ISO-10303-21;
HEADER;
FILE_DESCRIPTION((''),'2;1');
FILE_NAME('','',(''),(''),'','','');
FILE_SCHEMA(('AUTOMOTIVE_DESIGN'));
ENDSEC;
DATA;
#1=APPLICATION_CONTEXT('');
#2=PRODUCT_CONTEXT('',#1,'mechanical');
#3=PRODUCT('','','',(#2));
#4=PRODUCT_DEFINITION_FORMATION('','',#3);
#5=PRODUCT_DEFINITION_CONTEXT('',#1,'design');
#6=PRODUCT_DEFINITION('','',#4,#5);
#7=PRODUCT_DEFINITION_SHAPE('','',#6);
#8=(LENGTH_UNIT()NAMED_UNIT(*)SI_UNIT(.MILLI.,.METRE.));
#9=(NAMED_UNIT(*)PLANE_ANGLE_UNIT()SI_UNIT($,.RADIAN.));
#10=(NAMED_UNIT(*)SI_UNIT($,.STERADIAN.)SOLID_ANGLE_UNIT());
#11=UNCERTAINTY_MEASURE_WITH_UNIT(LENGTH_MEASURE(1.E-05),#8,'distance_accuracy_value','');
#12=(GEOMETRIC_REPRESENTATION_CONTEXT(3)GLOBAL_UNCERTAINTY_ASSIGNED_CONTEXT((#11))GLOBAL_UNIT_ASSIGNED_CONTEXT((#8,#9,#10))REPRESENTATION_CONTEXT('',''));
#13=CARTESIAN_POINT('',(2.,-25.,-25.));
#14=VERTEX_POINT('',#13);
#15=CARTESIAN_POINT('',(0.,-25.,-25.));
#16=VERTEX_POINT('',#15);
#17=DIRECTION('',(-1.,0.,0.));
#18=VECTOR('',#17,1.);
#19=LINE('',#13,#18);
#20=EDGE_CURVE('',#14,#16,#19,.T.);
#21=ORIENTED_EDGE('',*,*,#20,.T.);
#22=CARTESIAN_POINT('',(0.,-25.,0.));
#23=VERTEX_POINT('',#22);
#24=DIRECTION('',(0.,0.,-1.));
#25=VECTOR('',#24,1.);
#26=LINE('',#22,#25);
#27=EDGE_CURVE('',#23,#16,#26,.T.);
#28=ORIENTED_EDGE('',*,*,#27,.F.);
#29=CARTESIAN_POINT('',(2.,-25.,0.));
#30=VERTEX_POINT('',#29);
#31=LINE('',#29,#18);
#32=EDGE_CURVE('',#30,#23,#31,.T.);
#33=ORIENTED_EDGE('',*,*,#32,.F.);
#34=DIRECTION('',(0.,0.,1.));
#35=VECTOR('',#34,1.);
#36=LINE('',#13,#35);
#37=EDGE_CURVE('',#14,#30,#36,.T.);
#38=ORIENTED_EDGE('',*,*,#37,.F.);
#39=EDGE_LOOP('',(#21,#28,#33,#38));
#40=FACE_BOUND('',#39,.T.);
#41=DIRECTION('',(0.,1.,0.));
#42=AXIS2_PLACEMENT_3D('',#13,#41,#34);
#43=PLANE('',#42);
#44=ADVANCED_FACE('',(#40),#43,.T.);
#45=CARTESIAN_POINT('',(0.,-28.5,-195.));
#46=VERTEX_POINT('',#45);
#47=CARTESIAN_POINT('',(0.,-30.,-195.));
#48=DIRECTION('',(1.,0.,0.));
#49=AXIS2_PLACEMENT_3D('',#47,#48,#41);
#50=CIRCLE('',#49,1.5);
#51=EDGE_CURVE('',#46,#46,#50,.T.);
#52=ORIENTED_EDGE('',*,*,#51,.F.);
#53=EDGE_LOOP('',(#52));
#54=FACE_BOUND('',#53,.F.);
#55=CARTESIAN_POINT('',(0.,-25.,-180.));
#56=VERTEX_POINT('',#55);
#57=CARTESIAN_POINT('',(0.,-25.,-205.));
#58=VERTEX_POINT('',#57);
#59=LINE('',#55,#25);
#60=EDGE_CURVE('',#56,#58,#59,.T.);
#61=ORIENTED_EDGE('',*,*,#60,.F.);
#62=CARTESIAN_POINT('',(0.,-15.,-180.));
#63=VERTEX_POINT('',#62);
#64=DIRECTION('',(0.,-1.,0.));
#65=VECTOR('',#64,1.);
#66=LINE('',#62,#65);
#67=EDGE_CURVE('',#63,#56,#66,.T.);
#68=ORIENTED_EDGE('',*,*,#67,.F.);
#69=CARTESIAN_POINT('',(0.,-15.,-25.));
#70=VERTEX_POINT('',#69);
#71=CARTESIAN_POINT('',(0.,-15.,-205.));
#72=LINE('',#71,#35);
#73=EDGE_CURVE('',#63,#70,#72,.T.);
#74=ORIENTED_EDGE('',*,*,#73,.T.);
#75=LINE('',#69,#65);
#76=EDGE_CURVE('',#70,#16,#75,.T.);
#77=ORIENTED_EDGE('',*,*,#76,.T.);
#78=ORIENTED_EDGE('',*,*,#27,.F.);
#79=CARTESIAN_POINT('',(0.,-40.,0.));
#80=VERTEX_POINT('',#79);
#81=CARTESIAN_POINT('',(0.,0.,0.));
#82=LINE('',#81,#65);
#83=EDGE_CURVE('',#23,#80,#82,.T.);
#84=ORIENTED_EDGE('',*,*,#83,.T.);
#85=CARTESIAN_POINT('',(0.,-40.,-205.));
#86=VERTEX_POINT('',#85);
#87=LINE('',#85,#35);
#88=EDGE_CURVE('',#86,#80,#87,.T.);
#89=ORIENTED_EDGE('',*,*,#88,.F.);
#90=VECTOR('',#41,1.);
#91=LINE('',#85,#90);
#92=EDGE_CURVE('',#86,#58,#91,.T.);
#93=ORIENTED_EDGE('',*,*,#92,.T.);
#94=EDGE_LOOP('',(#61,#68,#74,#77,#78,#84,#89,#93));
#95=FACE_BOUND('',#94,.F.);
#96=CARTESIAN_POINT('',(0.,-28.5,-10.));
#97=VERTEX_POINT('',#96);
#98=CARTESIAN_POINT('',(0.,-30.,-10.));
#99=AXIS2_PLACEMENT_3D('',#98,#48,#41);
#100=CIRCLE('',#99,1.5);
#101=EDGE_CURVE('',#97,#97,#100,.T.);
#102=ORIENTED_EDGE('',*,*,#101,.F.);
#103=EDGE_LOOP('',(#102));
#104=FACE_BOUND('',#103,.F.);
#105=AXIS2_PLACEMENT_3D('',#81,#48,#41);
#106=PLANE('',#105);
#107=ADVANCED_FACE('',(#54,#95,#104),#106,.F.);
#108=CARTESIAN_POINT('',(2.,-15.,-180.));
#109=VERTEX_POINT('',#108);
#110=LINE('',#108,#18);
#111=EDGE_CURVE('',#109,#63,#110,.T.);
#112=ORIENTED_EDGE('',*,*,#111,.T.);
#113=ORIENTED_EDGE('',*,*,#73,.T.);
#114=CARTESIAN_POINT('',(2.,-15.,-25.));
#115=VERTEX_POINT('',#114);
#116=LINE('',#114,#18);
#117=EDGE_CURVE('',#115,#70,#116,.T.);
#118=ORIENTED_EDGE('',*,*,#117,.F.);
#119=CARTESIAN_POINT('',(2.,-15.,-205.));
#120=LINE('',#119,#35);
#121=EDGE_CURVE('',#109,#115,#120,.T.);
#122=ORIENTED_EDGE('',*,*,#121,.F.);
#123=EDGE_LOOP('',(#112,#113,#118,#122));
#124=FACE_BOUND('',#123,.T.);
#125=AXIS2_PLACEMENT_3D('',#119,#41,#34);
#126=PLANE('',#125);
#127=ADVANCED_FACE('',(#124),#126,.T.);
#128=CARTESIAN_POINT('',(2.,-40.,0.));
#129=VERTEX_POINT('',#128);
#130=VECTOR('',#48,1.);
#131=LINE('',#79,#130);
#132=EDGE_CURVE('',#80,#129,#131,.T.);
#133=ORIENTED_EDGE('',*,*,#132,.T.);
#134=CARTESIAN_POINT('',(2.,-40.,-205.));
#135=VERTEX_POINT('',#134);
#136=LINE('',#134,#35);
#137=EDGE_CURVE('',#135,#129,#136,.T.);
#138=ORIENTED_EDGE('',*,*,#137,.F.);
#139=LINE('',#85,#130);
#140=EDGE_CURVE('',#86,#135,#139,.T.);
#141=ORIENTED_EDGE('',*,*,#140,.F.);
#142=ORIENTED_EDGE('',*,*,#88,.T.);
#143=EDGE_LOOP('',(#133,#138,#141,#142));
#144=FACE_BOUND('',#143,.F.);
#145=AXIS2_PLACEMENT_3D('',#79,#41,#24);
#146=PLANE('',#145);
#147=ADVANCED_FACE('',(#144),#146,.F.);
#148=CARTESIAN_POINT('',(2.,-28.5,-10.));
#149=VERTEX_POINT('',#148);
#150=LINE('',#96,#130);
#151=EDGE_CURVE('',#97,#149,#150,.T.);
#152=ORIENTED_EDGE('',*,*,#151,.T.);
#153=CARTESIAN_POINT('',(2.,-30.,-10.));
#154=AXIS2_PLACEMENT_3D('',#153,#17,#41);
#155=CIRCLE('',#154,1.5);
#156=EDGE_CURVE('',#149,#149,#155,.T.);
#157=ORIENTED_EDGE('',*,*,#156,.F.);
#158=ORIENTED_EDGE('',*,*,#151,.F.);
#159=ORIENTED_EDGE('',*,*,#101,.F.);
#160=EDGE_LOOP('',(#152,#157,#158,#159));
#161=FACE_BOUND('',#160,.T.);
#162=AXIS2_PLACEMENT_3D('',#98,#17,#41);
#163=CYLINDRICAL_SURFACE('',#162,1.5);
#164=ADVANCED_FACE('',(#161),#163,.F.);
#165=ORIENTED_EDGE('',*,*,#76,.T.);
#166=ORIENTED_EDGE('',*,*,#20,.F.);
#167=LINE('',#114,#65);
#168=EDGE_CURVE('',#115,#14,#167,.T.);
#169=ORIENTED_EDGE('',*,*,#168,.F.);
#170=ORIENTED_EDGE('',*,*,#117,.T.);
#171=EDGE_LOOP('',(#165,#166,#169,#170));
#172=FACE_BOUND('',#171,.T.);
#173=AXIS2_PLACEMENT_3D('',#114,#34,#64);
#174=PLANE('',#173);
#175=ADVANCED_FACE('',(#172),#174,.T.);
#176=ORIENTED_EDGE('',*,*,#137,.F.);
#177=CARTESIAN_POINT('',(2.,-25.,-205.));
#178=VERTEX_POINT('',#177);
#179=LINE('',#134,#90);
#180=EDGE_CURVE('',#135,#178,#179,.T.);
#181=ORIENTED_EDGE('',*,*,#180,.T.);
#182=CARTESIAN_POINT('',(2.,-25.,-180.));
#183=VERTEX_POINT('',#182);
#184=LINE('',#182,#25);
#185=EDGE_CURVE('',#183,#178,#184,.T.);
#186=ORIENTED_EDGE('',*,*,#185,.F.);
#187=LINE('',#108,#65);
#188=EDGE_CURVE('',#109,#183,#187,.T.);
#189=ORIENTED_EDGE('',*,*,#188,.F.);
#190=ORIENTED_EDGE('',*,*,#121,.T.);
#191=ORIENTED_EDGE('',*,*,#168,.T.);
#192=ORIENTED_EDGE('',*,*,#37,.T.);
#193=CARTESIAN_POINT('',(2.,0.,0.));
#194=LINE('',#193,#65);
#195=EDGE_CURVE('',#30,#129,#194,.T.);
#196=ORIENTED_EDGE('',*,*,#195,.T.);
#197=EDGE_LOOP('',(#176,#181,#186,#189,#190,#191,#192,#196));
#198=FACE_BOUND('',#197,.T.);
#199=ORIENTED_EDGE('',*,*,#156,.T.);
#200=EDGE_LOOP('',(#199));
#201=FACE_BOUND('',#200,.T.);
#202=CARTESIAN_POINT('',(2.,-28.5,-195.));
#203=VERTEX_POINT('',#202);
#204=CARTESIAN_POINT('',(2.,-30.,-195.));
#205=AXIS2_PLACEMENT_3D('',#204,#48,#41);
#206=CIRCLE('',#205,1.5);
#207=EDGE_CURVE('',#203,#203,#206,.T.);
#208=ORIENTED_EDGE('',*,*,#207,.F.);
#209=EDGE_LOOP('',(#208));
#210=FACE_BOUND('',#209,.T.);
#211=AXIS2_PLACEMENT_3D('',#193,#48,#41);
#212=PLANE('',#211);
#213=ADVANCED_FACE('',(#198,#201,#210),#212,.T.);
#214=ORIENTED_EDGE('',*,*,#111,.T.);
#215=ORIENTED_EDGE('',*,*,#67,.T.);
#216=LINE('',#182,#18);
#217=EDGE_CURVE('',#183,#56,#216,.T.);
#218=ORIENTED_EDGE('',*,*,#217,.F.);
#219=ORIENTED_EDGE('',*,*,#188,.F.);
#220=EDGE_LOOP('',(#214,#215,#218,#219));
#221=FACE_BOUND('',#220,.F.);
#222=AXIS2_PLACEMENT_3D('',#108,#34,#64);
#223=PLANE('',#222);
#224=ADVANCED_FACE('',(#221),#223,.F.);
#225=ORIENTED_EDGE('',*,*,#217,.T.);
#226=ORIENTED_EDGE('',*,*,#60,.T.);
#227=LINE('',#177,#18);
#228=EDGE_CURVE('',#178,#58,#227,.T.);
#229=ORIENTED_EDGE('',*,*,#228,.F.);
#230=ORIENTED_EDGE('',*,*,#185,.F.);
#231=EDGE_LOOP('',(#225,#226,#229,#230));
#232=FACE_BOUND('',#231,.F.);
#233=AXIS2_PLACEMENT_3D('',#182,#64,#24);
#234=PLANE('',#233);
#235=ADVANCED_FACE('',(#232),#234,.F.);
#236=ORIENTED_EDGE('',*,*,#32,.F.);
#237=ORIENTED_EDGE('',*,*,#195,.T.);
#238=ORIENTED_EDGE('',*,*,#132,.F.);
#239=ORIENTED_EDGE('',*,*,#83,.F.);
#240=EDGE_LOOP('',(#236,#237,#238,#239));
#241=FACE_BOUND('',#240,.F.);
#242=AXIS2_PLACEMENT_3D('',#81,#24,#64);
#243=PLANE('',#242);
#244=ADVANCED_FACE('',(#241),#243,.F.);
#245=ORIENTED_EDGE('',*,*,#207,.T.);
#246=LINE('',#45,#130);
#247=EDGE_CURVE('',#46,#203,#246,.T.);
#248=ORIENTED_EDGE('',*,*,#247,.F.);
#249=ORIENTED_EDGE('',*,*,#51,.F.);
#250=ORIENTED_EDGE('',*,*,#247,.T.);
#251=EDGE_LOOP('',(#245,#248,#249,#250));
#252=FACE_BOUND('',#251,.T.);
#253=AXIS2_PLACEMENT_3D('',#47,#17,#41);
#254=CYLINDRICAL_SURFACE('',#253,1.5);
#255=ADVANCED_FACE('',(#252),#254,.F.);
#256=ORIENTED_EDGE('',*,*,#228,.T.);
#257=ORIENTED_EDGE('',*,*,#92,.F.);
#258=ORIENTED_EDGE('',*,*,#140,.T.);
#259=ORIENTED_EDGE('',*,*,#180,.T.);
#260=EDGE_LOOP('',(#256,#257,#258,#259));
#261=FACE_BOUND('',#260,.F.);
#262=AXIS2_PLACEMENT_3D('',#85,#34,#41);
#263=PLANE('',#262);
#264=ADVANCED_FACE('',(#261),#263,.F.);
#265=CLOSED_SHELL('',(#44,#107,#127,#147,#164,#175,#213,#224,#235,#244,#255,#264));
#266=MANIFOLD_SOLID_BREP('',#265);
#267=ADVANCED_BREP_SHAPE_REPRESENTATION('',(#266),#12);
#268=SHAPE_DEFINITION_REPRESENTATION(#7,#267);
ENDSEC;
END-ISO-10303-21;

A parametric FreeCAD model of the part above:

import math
import FreeCAD as App
import Part
import Sketcher
from FreeCAD import Vector

doc = App.newDocument("Part")
body = doc.addObject("PartDesign::Body", "Body")

# Sketch on YZ plane
sketch1 = body.newObject("Sketcher::SketchObject", "Sketch")
sketch1.AttachmentSupport = (doc.getObject("YZ_Plane"), [""])
sketch1.MapMode = "FlatFace"
sketch1.addGeometry([
    Part.LineSegment(Vector(0, -5, 0), Vector(0, 0, 0)),  # 0
    Part.LineSegment(Vector(0, 0, 0), Vector(-40, 0, 0)),  # 1
    Part.LineSegment(Vector(-40, 0, 0), Vector(-40, -10, 0)),  # 2
    Part.LineSegment(Vector(-40, -10, 0), Vector(-40, -205, 0)),  # 3
    Part.LineSegment(Vector(-40, -205, 0), Vector(0, -205, 0)),  # 4
    Part.LineSegment(Vector(0, -205, 0), Vector(0, -5, 0)),  # 5
    Part.ArcOfCircle(Part.Circle(Vector(-30, -10, 0), Vector(0, 0, 1), 1.5), math.radians(180), math.radians(360)),  # 6
    Part.ArcOfCircle(Part.Circle(Vector(-30, -10, 0), Vector(0, 0, 1), 1.5), math.radians(0), math.radians(180)),  # 7
    Part.Circle(Vector(-20, -10, 0), Vector(0, 0, 1), 1.5),  # 8
    Part.Circle(Vector(-5, -15, 0), Vector(0, 0, 1), 1.5),  # 9
    Part.ArcOfCircle(Part.Circle(Vector(-5, -5, 0), Vector(0, 0, 1), 1.5), math.radians(0), math.radians(270)),  # 10
    Part.ArcOfCircle(Part.Circle(Vector(-5, -5, 0), Vector(0, 0, 1), 1.5), math.radians(-90), math.radians(0)),  # 11
    Part.Circle(Vector(-5, -190, 0), Vector(0, 0, 1), 1.5),  # 12
    Part.Circle(Vector(-30, -195, 0), Vector(0, 0, 1), 1.5),  # 13
    Part.Circle(Vector(-20, -195, 0), Vector(0, 0, 1), 1.5),  # 14
    Part.Circle(Vector(-5, -200, 0), Vector(0, 0, 1), 1.5),  # 15
], False)
sketch1.addConstraint([
    Sketcher.Constraint("Coincident", 0, 2, 1, 1),
    Sketcher.Constraint("Coincident", 1, 2, 2, 1),
    Sketcher.Constraint("Coincident", 2, 2, 3, 1),
    Sketcher.Constraint("Coincident", 3, 2, 4, 1),
    Sketcher.Constraint("Coincident", 4, 2, 5, 1),
    Sketcher.Constraint("Coincident", 5, 2, 0, 1),
    Sketcher.Constraint("Tangent", 6, 1, 7, 2),
    Sketcher.Constraint("Coincident", 7, 1, 6, 2),
    Sketcher.Constraint("Tangent", 10, 1, 11, 2),
    Sketcher.Constraint("Coincident", 11, 1, 10, 2),
    Sketcher.Constraint("Vertical", 0),
    Sketcher.Constraint("Horizontal", 1),
    Sketcher.Constraint("Vertical", 2),
    Sketcher.Constraint("Vertical", 3),
    Sketcher.Constraint("Horizontal", 4),
    Sketcher.Constraint("Vertical", 5),
    Sketcher.Constraint("Coincident", 0, 2, -1, 1),
    Sketcher.Constraint("Equal", 7, 8),
    Sketcher.Constraint("Equal", 8, 9),
    Sketcher.Constraint("Equal", 9, 10),
    Sketcher.Constraint("Equal", 11, 12),
    Sketcher.Constraint("Equal", 12, 13),
    Sketcher.Constraint("Equal", 13, 14),
    Sketcher.Constraint("Equal", 14, 15),
    Sketcher.Constraint("Horizontal", 7, 3, 8, 3),
    Sketcher.Constraint("Horizontal", 13, 3, 14, 3),
    Sketcher.Constraint("Horizontal", 8, 3, 2, 2),
    Sketcher.Constraint("Horizontal", 11, 3, 5, 2),
    Sketcher.Constraint("Horizontal", 2, 2, 6, 1),
    Sketcher.Constraint("Horizontal", 6, 1, 7, 1),
    Sketcher.Constraint("Horizontal", 5, 2, 10, 1),
    Sketcher.Constraint("Vertical", 9, 3, 10, 3),
    Sketcher.Constraint("Vertical", 11, 3, 12, 3),
    Sketcher.Constraint("Vertical", 7, 3, 13, 3),
    Sketcher.Constraint("Vertical", 8, 3, 14, 3),
    Sketcher.Constraint("Vertical", 12, 3, 15, 3),
    Sketcher.Constraint("Vertical", 15, 3, 11, 1),
    Sketcher.Constraint("Diameter", 8, 3.0),
    Sketcher.Constraint("DistanceX", 1, 2, 1, 1, 40.0),
    Sketcher.Constraint("DistanceY", 0, 1, 0, 2, 5.0),
    Sketcher.Constraint("DistanceY", 2, 2, 2, 1, 10.0),
    Sketcher.Constraint("DistanceX", 9, 3, -1, 1, 5.0),
    Sketcher.Constraint("DistanceY", 3, 2, -1, 1, 205.0),
    Sketcher.Constraint("DistanceX", 6, 3, 8, 3, 10.0),
    Sketcher.Constraint("DistanceY", 9, 3, 8, 3, 5.0),
    Sketcher.Constraint("DistanceY", 13, 3, 12, 3, 5.0),
    Sketcher.Constraint("DistanceY", 15, 3, 12, 3, 10.0),
    Sketcher.Constraint("DistanceX", 1, 2, 6, 3, 10.0),
    Sketcher.Constraint("DistanceY", 3, 2, 13, 3, 10.0),
])
pad1 = body.newObject("PartDesign::Pad", "Pad")
pad1.Profile = sketch1
pad1.Length = 2

# Sketch on YZ plane
sketch2 = body.newObject("Sketcher::SketchObject", "Sketch001")
sketch2.AttachmentSupport = (doc.getObject("YZ_Plane"), [""])
sketch2.MapMode = "FlatFace"
sketch2.AttachmentOffset = App.Placement(Vector(0, 0, 2), App.Rotation())
sketch2.addGeometry([
    Part.LineSegment(Vector(-15, 0, 0), Vector(-15, -205, 0)),
    Part.LineSegment(Vector(-15, -205, 0), Vector(0, -205, 0)),
    Part.LineSegment(Vector(0, -205, 0), Vector(0, 0, 0)),
    Part.LineSegment(Vector(0, 0, 0), Vector(-15, 0, 0)),
], False)
sketch2.addConstraint([
    Sketcher.Constraint("Coincident", 0, 2, 1, 1),
    Sketcher.Constraint("Coincident", 1, 2, 2, 1),
    Sketcher.Constraint("Coincident", 2, 2, 3, 1),
    Sketcher.Constraint("Coincident", 3, 2, 0, 1),
    Sketcher.Constraint("Vertical", 0),
    Sketcher.Constraint("Horizontal", 1),
    Sketcher.Constraint("Vertical", 2),
    Sketcher.Constraint("Horizontal", 3),
    Sketcher.Constraint("Coincident", 2, 2, -1, 1),
    Sketcher.Constraint("DistanceX", 1, 1, 1, 2, 15.0),
    Sketcher.Constraint("DistanceY", 0, 2, 0, 1, 205.0),
])
pocket1 = body.newObject("PartDesign::Pocket", "Pocket")
pocket1.Profile = sketch2
pocket1.Length = 2

# Sketch on YZ plane
sketch3 = body.newObject("Sketcher::SketchObject", "Sketch002")
sketch3.AttachmentSupport = (doc.getObject("YZ_Plane"), [""])
sketch3.MapMode = "FlatFace"
sketch3.AttachmentOffset = App.Placement(Vector(0, 0, 2), App.Rotation())
sketch3.addGeometry([
    Part.LineSegment(Vector(-15, -25, 0), Vector(-15, 0, 0)),  # 0
    Part.LineSegment(Vector(-15, 0, 0), Vector(-25, 0, 0)),  # 1
    Part.LineSegment(Vector(-25, 0, 0), Vector(-25, -25, 0)),  # 2
    Part.LineSegment(Vector(-25, -25, 0), Vector(-15, -25, 0)),  # 3
    Part.LineSegment(Vector(-15, -205, 0), Vector(-15, -180, 0)),  # 4
    Part.LineSegment(Vector(-15, -180, 0), Vector(-25, -180, 0)),  # 5
    Part.LineSegment(Vector(-25, -180, 0), Vector(-25, -205, 0)),  # 6
    Part.LineSegment(Vector(-25, -205, 0), Vector(-15, -205, 0)),  # 7
], False)
sketch3.addConstraint([
    Sketcher.Constraint("Coincident", 0, 2, 1, 1),
    Sketcher.Constraint("Coincident", 1, 2, 2, 1),
    Sketcher.Constraint("Coincident", 2, 2, 3, 1),
    Sketcher.Constraint("Coincident", 3, 2, 0, 1),
    Sketcher.Constraint("Coincident", 4, 2, 5, 1),
    Sketcher.Constraint("Coincident", 5, 2, 6, 1),
    Sketcher.Constraint("Coincident", 6, 2, 7, 1),
    Sketcher.Constraint("Coincident", 7, 2, 4, 1),
    Sketcher.Constraint("Vertical", 0),
    Sketcher.Constraint("Horizontal", 1),
    Sketcher.Constraint("Vertical", 2),
    Sketcher.Constraint("Horizontal", 3),
    Sketcher.Constraint("Vertical", 4),
    Sketcher.Constraint("Horizontal", 5),
    Sketcher.Constraint("Vertical", 6),
    Sketcher.Constraint("Horizontal", 7),
    Sketcher.Constraint("PointOnObject", 0, 2, -1),
    Sketcher.Constraint("Vertical", 3, 2, 4, 2),
    Sketcher.Constraint("Vertical", 2, 2, 5, 2),
    Sketcher.Constraint("Equal", 2, 4),
    Sketcher.Constraint("DistanceX", 1, 2, 1, 1, 10.0),
    Sketcher.Constraint("DistanceY", 0, 1, 0, 2, 25.0),
    Sketcher.Constraint("DistanceX", 1, 2, -1, 1, 25.0),
    Sketcher.Constraint("DistanceY", 4, 2, -1, 1, 180.0),
])
pocket2 = body.newObject("PartDesign::Pocket", "Pocket001")
pocket2.Profile = sketch3
pocket2.Length = 2

doc.recompute()
